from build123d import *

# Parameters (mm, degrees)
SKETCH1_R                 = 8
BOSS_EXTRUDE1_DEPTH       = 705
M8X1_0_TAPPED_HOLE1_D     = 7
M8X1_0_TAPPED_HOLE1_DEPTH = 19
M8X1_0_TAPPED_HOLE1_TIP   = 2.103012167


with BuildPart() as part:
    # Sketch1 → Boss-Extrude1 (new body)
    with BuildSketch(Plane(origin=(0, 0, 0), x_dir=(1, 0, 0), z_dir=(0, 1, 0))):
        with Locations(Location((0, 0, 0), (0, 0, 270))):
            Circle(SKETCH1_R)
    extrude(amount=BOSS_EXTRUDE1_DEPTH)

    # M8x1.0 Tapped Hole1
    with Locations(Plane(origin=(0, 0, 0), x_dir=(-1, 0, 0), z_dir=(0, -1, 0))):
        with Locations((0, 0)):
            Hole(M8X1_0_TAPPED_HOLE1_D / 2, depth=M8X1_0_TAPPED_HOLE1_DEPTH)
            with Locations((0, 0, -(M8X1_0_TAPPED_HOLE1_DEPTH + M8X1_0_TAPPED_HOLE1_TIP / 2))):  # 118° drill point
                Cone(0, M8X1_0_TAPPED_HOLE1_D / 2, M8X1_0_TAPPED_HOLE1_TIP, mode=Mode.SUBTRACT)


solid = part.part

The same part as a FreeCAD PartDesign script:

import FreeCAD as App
import Part
import Sketcher
from FreeCAD import Vector

doc = App.newDocument("Part")
body = doc.addObject("PartDesign::Body", "Body")

# Sketch on XZ plane
sketch1 = body.newObject("Sketcher::SketchObject", "Sketch")
sketch1.AttachmentSupport = (doc.getObject("XZ_Plane"), [""])
sketch1.MapMode = "FlatFace"
sketch1.addGeometry(Part.Circle(Vector(0, 0, 0), Vector(0, 0, 1), 8), False)
sketch1.addConstraint(Sketcher.Constraint("Coincident", 0, 3, -1, 1))
sketch1.addConstraint(Sketcher.Constraint("Diameter", 0, 16.0))
pad1 = body.newObject("PartDesign::Pad", "Pad")
pad1.Profile = sketch1
pad1.Length = 705
pad1.Reversed = True

# Sketch on XZ plane
sketch2 = body.newObject("Sketcher::SketchObject", "Sketch001")
sketch2.AttachmentSupport = (doc.getObject("XZ_Plane"), [""])
sketch2.MapMode = "FlatFace"
sketch2.addGeometry(Part.Circle(Vector(0, 0, 0), Vector(0, 0, 1), 3.5), False)
sketch2.addConstraint(Sketcher.Constraint("Coincident", 0, 3, -1, 1))
sketch2.addConstraint(Sketcher.Constraint("Diameter", 0, 7.0))
doc.recompute()
hole = body.newObject("PartDesign::Hole", "Hole")
hole.Profile = sketch2
hole.ThreadType = "None"
hole.Diameter = 7
hole.DepthType = "Dimension"
hole.Depth = 19
hole.DrillPoint = "Angled"
hole.DrillPointAngle = 118

doc.recompute()
